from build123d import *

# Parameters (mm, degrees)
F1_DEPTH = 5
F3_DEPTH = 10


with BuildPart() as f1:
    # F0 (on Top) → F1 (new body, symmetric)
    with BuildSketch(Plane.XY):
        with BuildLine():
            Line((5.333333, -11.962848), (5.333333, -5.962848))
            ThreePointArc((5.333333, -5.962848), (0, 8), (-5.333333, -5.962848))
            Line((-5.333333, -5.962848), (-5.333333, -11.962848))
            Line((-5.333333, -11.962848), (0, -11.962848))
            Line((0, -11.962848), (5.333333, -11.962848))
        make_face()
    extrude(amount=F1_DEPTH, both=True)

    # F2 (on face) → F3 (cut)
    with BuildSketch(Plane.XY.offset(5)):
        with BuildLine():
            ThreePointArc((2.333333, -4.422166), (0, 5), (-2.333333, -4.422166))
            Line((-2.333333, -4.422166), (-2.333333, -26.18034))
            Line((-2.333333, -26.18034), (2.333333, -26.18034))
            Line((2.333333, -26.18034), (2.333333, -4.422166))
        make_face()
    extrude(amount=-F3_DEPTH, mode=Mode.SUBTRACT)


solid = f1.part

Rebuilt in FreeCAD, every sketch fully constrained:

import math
import FreeCAD as App
import Part
import Sketcher
Q = App.Units.Quantity

doc = App.newDocument("Part")
params = doc.addObject("Spreadsheet::Sheet", "Params")
for row, (alias, value) in enumerate([
    ("sketch1_radius", "8 mm"),
    ("sketch1_height", "6 mm"),
    ("pad1_length", "10 mm"),
    ("sketch2_radius", "5 mm"),
    ("pocket1_length", "10 mm"),
], start=1):
    params.set(f"A{row}", alias)
    params.set(f"B{row}", "=" + value)
    params.setAlias(f"B{row}", alias)

body = doc.addObject("PartDesign::Body", "Body")

sketch1 = body.newObject("Sketcher::SketchObject", "Sketch")
sketch1.AttachmentSupport = (doc.getObject("XY_Plane"), [""])
sketch1.MapMode = "FlatFace"
sketch1.addGeometry(Part.LineSegment(App.Vector(5, -12, 0), App.Vector(5, -6, 0)), False)
sketch1.addGeometry(Part.ArcOfCircle(Part.Circle(App.Vector(0, 0, 0), App.Vector(0, 0, 1), 8), math.radians(-48), math.radians(228)), False)
sketch1.addGeometry(Part.LineSegment(App.Vector(-5, -6, 0), App.Vector(-5, -12, 0)), False)
sketch1.addGeometry(Part.LineSegment(App.Vector(-5, -12, 0), App.Vector(5, -12, 0)), False)
sketch1.addConstraint(Sketcher.Constraint("Coincident", 0, 2, 1, 1))
sketch1.addConstraint(Sketcher.Constraint("Coincident", 1, 2, 2, 1))
sketch1.addConstraint(Sketcher.Constraint("Coincident", 2, 2, 3, 1))
sketch1.addConstraint(Sketcher.Constraint("Coincident", 3, 2, 0, 1))
sketch1.addConstraint(Sketcher.Constraint("Vertical", 0))
sketch1.addConstraint(Sketcher.Constraint("Vertical", 2))
sketch1.addConstraint(Sketcher.Constraint("Horizontal", 3))
sketch1.addConstraint(Sketcher.Constraint("Coincident", 1, 3, -1, 1))
sketch1.addConstraint(Sketcher.Constraint("Horizontal", 0, 2, 1, 2))
sketch1.addConstraint(Sketcher.Constraint("Radius", 1, Q("8 mm")))
sketch1.addConstraint(Sketcher.Constraint("DistanceY", 0, 1, 0, 2, Q("6 mm")))
sketch1.addConstraint(Sketcher.Constraint("DistanceX", 3, 1, 3, 2, Q("10.666666 mm")))
sketch1.setExpression("Constraints[9]", "Params.sketch1_radius")
sketch1.setExpression("Constraints[10]", "Params.sketch1_height")
pad1 = body.newObject("PartDesign::Pad", "Pad")
pad1.Profile = sketch1
pad1.setExpression("Length", "Params.pad1_length")
pad1.Midplane = True

sketch2 = body.newObject("Sketcher::SketchObject", "Sketch001")
sketch2.AttachmentSupport = (doc.getObject("XY_Plane"), [""])
sketch2.MapMode = "FlatFace"
sketch2.AttachmentOffset = App.Placement(App.Vector(0, 0, 5), App.Rotation())
sketch2.addGeometry(Part.ArcOfCircle(Part.Circle(App.Vector(0, 0, 0), App.Vector(0, 0, 1), 5), math.radians(-62), math.radians(242)), False)
sketch2.addGeometry(Part.LineSegment(App.Vector(-2.3, -4.4, 0), App.Vector(-2.3, -26.2, 0)), False)
sketch2.addGeometry(Part.LineSegment(App.Vector(-2.3, -26.2, 0), App.Vector(2.3, -26.2, 0)), False)
sketch2.addGeometry(Part.LineSegment(App.Vector(2.3, -26.2, 0), App.Vector(2.3, -4.4, 0)), False)
sketch2.addConstraint(Sketcher.Constraint("Coincident", 0, 2, 1, 1))
sketch2.addConstraint(Sketcher.Constraint("Coincident", 1, 2, 2, 1))
sketch2.addConstraint(Sketcher.Constraint("Coincident", 2, 2, 3, 1))
sketch2.addConstraint(Sketcher.Constraint("Coincident", 3, 2, 0, 1))
sketch2.addConstraint(Sketcher.Constraint("Vertical", 1))
sketch2.addConstraint(Sketcher.Constraint("Horizontal", 2))
sketch2.addConstraint(Sketcher.Constraint("Vertical", 3))
sketch2.addConstraint(Sketcher.Constraint("Coincident", 0, 3, -1, 1))
sketch2.addConstraint(Sketcher.Constraint("Horizontal", 0, 2, 3, 2))
sketch2.addConstraint(Sketcher.Constraint("Radius", 0, Q("5 mm")))
sketch2.addConstraint(Sketcher.Constraint("DistanceX", 2, 1, 2, 2, Q("4.666666 mm")))
sketch2.addConstraint(Sketcher.Constraint("DistanceY", 1, 2, 1, 1, Q("21.758174 mm")))
sketch2.setExpression("Constraints[9]", "Params.sketch2_radius")
pocket1 = body.newObject("PartDesign::Pocket", "Pocket")
pocket1.Profile = sketch2
pocket1.setExpression("Length", "Params.pocket1_length")

doc.recompute()
